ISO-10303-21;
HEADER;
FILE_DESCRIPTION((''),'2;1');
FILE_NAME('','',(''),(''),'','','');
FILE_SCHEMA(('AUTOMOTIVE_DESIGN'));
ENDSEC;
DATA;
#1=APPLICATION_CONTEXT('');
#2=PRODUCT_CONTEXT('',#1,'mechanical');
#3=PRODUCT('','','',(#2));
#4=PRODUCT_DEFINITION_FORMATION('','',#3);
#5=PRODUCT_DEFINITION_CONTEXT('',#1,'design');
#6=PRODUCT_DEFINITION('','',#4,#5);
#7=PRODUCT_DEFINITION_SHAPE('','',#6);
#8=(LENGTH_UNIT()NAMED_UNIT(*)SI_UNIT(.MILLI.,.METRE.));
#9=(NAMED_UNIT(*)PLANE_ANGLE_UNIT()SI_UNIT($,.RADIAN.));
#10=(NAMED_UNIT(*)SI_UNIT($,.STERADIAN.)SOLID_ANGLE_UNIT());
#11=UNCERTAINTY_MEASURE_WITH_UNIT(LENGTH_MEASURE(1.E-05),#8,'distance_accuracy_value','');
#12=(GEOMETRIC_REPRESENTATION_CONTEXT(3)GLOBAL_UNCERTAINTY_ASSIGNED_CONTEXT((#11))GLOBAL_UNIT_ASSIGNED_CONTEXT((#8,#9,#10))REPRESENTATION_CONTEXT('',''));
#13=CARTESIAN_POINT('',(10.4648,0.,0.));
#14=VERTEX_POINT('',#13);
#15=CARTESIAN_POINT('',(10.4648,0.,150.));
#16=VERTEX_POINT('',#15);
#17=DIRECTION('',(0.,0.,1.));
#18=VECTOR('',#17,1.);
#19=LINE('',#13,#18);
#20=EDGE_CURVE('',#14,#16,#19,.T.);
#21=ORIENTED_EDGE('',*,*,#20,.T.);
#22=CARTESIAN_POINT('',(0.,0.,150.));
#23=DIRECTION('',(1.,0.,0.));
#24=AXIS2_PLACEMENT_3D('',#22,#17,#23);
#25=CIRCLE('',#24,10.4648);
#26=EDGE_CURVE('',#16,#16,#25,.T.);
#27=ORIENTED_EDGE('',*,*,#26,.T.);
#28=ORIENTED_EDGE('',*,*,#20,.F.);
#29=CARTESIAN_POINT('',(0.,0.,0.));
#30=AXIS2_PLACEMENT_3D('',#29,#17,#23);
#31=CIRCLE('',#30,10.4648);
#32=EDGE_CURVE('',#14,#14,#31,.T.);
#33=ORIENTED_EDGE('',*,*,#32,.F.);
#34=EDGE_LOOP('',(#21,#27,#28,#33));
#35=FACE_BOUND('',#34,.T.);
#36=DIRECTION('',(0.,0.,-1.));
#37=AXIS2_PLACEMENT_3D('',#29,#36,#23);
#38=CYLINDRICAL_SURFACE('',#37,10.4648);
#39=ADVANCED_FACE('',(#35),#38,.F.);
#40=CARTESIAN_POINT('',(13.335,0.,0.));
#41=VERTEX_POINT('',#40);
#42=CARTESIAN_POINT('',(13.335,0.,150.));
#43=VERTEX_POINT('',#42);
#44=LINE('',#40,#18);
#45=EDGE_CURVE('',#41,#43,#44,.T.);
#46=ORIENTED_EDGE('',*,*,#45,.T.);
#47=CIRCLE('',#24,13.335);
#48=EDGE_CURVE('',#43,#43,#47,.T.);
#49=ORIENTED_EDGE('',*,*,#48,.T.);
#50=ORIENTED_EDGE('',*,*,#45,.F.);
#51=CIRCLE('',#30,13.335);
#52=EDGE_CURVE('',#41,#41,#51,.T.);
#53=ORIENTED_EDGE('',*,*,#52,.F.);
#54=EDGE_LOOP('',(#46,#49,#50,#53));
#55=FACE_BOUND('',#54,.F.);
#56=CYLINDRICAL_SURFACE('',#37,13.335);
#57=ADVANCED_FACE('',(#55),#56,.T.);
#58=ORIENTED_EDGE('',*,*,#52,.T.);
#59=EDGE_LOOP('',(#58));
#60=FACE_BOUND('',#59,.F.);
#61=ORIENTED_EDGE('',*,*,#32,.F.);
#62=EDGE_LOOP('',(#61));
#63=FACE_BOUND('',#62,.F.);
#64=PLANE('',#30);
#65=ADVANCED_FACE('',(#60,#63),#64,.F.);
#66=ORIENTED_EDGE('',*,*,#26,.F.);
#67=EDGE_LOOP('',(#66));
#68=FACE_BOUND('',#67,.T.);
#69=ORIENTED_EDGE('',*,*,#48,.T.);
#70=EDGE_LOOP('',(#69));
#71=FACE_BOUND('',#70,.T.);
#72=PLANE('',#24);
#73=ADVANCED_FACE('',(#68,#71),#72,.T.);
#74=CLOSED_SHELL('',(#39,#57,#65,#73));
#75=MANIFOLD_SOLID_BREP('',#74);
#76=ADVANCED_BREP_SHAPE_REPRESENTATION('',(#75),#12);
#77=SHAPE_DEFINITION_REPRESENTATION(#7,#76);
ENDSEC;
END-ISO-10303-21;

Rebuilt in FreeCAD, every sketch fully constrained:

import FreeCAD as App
import Part
import Sketcher
from FreeCAD import Vector
Q = App.Units.Quantity

doc = App.newDocument("Part")
body = doc.addObject("PartDesign::Body", "Body")

sketch1 = body.newObject("Sketcher::SketchObject", "Sketch")
sketch1.AttachmentSupport = (doc.getObject("XY_Plane"), [""])
sketch1.MapMode = "FlatFace"
sketch1.addGeometry([
    Part.Circle(Vector(0, 0, 0), Vector(0, 0, 1), 13.335),
    Part.Circle(Vector(0, 0, 0), Vector(0, 0, 1), 10.4648),
], False)
sketch1.addConstraint([
    Sketcher.Constraint("Coincident", 0, 3, -1, 1),
    Sketcher.Constraint("Coincident", 1, 3, -1, 1),
    Sketcher.Constraint("Diameter", 0, Q("1.05 in")),
    Sketcher.Constraint("Diameter", 1, Q("0.824 in")),
])
pad1 = body.newObject("PartDesign::Pad", "Pad")
pad1.Profile = sketch1
pad1.Length = Q("5.9055118 in")

doc.recompute()
